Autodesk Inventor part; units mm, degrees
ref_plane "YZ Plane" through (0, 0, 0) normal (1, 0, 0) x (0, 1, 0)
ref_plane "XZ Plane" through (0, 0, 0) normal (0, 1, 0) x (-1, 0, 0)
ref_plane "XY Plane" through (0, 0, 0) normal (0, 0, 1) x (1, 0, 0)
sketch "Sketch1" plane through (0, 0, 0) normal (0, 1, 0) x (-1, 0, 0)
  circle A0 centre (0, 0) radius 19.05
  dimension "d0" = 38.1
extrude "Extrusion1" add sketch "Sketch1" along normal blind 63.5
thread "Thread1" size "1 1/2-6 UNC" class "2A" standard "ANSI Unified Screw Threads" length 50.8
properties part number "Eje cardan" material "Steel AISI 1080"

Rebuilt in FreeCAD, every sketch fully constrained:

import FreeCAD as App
import Part
import Sketcher
Q = App.Units.Quantity

doc = App.newDocument("Part")
body = doc.addObject("PartDesign::Body", "Body")

# Sketch on XZ plane
sketch1 = body.newObject("Sketcher::SketchObject", "Sketch")
sketch1.AttachmentSupport = (doc.getObject("XZ_Plane"), [""])
sketch1.MapMode = "FlatFace"
sketch1.addGeometry(Part.Circle(App.Vector(0, 0, 0), App.Vector(0, 0, 1), 19), False)
sketch1.addConstraint(Sketcher.Constraint("Coincident", 0, 3, -1, 1))
sketch1.addConstraint(Sketcher.Constraint("Diameter", 0, Q("1.5 in")))
pad1 = body.newObject("PartDesign::Pad", "Pad")
pad1.Profile = sketch1
pad1.Length = Q("2.5 in")
pad1.Reversed = True

doc.recompute()
